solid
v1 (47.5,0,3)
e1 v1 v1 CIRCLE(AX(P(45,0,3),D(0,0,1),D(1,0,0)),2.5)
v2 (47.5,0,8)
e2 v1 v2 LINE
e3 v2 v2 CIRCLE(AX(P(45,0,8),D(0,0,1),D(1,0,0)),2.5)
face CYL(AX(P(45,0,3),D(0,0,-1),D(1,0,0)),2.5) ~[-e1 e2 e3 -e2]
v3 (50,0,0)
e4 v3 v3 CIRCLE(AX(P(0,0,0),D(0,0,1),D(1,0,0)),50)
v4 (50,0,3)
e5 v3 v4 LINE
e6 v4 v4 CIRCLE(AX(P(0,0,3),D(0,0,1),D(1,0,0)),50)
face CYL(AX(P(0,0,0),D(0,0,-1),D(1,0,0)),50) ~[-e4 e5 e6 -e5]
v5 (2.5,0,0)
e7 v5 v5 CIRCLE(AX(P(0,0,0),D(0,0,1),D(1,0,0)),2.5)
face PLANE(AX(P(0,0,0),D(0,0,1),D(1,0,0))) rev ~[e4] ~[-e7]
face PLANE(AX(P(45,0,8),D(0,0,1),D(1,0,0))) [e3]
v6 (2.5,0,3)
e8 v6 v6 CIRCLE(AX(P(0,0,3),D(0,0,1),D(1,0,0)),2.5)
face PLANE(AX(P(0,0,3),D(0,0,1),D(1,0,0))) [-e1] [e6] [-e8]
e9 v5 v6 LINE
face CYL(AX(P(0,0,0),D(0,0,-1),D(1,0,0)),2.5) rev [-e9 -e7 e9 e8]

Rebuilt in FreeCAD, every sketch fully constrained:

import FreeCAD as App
import Part
import Sketcher

doc = App.newDocument("Part")
params = doc.addObject("Spreadsheet::Sheet", "Params")
for row, (alias, value) in enumerate([
    ("sketch1_diameter", "100 mm"),
    ("sketch1_diameter2", "5 mm"),
    ("pad1_length", "3 mm"),
    ("sketch2_diameter", "5 mm"),
    ("pad2_length", "5 mm"),
], start=1):
    params.set(f"A{row}", alias)
    params.set(f"B{row}", "=" + value)
    params.setAlias(f"B{row}", alias)

body = doc.addObject("PartDesign::Body", "Body")

# Sketch on XY plane
sketch1 = doc.addObject("Sketcher::SketchObject", "Sketch")
body.addObject(sketch1)
sketch1.AttachmentSupport = (doc.XY_Plane, [""])
sketch1.MapMode = "FlatFace"
sketch1.addGeometry([
    Part.Circle(App.Vector(0, 0, 0), App.Vector(0, 0, 1), 50),
    Part.Circle(App.Vector(0, 0, 0), App.Vector(0, 0, 1), 2.5),
], False)
sketch1.addConstraint([
    Sketcher.Constraint("Coincident", 0, 3, -1, 1),
    Sketcher.Constraint("Coincident", 1, 3, -1, 1),
    Sketcher.Constraint("Diameter", 0, 100.0),
    Sketcher.Constraint("Diameter", 1, 5.0),
])
sketch1.setExpression("Constraints[2]", "Params.sketch1_diameter")
sketch1.setExpression("Constraints[3]", "Params.sketch1_diameter2")
pad1 = doc.addObject("PartDesign::Pad", "Pad")
body.addObject(pad1)
pad1.Profile = sketch1
pad1.setExpression("Length", "Params.pad1_length")

# Sketch on XY plane
sketch2 = doc.addObject("Sketcher::SketchObject", "Sketch001")
body.addObject(sketch2)
sketch2.AttachmentSupport = (doc.XY_Plane, [""])
sketch2.MapMode = "FlatFace"
sketch2.AttachmentOffset = App.Placement(App.Vector(0, 0, 3), App.Rotation())
sketch2.addGeometry(Part.Circle(App.Vector(45, 0, 0), App.Vector(0, 0, 1), 2.5), False)
sketch2.addConstraint([
    Sketcher.Constraint("PointOnObject", 0, 3, -1),
    Sketcher.Constraint("Diameter", 0, 5.0),
    Sketcher.Constraint("DistanceX", -1, 1, 0, 3, 45.0),
])
sketch2.setExpression("Constraints[1]", "Params.sketch2_diameter")
pad2 = doc.addObject("PartDesign::Pad", "Pad001")
body.addObject(pad2)
pad2.Profile = sketch2
pad2.setExpression("Length", "Params.pad2_length")

doc.recompute()
